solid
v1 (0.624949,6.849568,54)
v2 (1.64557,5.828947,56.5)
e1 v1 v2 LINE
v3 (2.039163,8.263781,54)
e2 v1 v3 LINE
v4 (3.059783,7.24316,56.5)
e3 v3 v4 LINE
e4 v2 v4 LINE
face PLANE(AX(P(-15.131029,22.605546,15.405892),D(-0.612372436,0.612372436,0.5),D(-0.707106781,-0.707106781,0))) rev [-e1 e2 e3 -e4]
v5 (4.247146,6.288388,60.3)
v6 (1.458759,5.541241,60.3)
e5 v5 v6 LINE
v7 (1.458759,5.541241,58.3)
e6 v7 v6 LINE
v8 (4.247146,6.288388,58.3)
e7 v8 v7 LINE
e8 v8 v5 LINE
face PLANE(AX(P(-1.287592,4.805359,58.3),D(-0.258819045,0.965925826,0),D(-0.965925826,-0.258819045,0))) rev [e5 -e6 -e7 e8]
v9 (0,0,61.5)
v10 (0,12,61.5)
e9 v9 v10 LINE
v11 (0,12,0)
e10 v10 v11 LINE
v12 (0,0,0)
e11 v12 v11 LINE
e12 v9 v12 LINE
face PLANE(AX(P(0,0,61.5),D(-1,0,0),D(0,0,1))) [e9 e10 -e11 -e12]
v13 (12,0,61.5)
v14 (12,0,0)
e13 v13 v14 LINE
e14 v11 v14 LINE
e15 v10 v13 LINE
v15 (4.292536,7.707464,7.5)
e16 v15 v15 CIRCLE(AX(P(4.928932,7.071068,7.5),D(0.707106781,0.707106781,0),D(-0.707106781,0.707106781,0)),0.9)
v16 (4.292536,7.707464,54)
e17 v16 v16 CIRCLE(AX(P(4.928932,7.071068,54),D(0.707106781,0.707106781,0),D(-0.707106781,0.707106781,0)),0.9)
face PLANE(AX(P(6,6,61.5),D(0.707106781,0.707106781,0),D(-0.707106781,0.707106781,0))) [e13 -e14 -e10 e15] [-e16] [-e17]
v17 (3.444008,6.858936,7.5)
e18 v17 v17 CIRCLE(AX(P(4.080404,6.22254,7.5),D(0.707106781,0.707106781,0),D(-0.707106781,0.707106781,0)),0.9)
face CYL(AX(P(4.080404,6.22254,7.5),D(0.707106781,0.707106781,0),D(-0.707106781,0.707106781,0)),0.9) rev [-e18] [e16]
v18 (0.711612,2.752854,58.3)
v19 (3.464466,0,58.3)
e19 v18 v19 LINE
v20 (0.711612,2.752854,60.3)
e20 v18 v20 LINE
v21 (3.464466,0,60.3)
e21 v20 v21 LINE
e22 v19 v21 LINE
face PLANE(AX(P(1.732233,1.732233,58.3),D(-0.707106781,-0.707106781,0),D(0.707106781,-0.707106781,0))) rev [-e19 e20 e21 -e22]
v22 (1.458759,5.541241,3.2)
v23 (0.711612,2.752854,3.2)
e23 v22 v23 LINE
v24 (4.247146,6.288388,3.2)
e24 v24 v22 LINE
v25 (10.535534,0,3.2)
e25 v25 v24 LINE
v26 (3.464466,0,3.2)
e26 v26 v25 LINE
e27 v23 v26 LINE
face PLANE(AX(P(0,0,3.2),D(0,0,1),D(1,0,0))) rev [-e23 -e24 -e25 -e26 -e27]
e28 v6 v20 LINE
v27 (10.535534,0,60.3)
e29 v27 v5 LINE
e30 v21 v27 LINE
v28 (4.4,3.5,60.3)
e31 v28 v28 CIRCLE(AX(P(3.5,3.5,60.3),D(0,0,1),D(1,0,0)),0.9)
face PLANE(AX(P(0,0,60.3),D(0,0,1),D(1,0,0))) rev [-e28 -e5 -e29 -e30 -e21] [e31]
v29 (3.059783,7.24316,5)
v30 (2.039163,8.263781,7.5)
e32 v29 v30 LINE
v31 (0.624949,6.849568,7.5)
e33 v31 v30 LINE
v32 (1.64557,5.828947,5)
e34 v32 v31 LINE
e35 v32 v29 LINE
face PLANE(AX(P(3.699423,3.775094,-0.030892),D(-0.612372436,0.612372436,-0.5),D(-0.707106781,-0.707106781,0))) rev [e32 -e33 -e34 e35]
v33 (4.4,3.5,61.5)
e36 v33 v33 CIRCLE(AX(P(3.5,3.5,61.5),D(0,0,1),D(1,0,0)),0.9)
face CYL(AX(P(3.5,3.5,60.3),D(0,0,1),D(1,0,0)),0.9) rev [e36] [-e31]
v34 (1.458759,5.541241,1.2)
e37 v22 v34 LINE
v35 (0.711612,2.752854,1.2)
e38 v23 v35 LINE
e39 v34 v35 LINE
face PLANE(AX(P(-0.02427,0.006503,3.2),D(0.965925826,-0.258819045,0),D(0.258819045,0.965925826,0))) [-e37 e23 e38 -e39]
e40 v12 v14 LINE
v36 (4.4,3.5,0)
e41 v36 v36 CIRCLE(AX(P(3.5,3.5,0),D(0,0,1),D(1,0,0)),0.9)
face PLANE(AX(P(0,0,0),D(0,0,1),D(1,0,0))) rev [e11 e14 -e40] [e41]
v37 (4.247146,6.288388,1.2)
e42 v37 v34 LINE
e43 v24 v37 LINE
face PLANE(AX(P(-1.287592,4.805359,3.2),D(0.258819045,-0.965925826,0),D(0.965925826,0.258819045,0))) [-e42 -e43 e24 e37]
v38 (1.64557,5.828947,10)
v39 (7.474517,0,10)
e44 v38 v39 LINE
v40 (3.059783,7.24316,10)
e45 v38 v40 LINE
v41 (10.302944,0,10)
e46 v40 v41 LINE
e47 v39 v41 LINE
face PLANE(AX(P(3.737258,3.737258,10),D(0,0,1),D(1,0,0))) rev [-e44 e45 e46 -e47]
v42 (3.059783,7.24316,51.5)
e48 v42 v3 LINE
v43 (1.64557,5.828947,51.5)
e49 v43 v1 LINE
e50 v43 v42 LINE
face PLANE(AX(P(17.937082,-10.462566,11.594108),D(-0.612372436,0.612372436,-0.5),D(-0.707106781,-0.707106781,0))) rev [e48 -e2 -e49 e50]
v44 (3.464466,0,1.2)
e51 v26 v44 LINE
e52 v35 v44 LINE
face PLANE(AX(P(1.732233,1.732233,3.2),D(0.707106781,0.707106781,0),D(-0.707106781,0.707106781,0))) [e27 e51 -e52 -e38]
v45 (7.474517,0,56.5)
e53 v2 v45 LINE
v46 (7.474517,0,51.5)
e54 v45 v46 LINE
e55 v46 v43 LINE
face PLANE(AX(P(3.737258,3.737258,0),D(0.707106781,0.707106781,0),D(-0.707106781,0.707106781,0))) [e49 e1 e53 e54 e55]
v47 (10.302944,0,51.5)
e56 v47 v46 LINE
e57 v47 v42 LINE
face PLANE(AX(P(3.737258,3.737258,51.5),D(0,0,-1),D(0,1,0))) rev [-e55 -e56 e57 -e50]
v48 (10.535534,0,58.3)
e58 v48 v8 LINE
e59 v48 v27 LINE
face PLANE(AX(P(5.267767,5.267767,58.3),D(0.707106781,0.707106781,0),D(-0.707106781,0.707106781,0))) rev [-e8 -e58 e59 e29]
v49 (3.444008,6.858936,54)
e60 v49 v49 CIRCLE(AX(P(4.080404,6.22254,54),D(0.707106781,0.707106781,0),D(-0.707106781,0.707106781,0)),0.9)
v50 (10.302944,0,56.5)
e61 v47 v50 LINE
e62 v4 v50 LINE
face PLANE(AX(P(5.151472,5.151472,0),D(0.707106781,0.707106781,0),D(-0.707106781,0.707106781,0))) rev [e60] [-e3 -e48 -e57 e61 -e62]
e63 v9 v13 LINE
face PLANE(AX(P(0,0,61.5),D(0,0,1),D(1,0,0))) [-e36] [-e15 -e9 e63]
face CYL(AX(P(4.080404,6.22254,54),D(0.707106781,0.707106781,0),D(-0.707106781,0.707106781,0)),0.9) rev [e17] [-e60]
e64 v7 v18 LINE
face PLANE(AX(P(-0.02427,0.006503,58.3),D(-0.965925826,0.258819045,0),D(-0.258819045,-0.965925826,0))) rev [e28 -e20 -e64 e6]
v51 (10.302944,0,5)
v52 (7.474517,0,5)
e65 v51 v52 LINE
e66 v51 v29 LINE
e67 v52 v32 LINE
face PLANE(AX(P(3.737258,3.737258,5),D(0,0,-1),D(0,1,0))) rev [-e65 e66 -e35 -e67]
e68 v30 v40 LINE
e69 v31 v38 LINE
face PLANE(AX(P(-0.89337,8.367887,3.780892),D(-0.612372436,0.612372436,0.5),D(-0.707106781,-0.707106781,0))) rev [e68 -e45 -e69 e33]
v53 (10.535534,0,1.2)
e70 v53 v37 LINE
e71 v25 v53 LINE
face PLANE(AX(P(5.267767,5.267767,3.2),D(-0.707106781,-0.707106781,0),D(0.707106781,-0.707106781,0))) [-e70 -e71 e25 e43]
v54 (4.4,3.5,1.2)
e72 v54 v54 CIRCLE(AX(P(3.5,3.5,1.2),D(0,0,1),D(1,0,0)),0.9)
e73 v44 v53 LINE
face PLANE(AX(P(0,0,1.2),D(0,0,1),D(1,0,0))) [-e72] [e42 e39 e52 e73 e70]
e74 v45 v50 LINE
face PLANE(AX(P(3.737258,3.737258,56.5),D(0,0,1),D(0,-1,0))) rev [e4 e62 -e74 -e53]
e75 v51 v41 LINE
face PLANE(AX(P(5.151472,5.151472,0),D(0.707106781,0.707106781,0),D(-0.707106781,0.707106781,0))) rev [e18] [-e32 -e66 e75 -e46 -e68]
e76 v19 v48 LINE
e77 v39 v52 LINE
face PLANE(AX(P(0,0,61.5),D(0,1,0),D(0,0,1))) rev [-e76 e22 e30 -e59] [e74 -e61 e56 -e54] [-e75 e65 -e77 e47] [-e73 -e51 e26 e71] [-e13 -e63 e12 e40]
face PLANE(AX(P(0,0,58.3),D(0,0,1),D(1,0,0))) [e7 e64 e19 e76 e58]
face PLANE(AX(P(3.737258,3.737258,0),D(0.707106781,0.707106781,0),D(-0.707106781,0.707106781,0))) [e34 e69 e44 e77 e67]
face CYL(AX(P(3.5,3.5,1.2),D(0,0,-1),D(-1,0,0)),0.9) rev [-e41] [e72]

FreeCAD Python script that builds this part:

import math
import FreeCAD as App
import Part
import Sketcher
from FreeCAD import Vector
Q = App.Units.Quantity


def add_polygon(sketch, points):
    """Adds a closed chain of lines whose ends are joined by coincident constraints."""
    first, n = sketch.GeometryCount, len(points)
    for a, b in zip(points, points[1:] + points[:1]):
        sketch.addGeometry(Part.LineSegment(App.Vector(*a, 0), App.Vector(*b, 0)), False)
    for i in range(n):
        sketch.addConstraint(Sketcher.Constraint("Coincident", first + i, 2, first + (i + 1) % n, 1))

doc = App.newDocument("Part")
body = doc.addObject("PartDesign::Body", "Body")

# Sketch on XY plane
sketch1 = body.newObject("Sketcher::SketchObject", "Sketch")
sketch1.AttachmentSupport = (doc.getObject("XY_Plane"), [""])
sketch1.MapMode = "FlatFace"
add_polygon(sketch1, [(12, 0), (0, 12), (0, 0)])  # lines 0-2
sketch1.addConstraint([
    Sketcher.Constraint("Vertical", 1),
    Sketcher.Constraint("Horizontal", 2),
    Sketcher.Constraint("Coincident", 1, 2, -1, 1),
    Sketcher.Constraint("Equal", 2, 1),
    Sketcher.Constraint("DistanceX", 2, 1, 2, 2, 12.0),
])
pad1 = body.newObject("PartDesign::Pad", "Pad")
pad1.Profile = sketch1
pad1.Length = 61.5

# Sketch on XY plane
sketch2 = body.newObject("Sketcher::SketchObject", "Sketch001")
sketch2.AttachmentSupport = (doc.getObject("XY_Plane"), [""])
sketch2.MapMode = "FlatFace"
add_polygon(sketch2, [(10.5, 0), (4.2, 6.3), (1.5, 5.5), (0.7, 2.8), (3.5, 0)])  # lines 0-4
sketch2.addConstraint([
    Sketcher.Constraint("Horizontal", 4),
    Sketcher.Constraint("PointOnObject", 3, 2, -1),
    Sketcher.Constraint("Parallel", 0, 3),
    Sketcher.Constraint("Equal", 1, 2),
    Sketcher.Constraint("Angle", 0, Q("135 deg")),
    Sketcher.Constraint("Angle", 1, Q("-165 deg")),
    Sketcher.Constraint("Angle", 2, Q("-105 deg")),
    Sketcher.Constraint("Distance", 1, 2.886751),
    Sketcher.Constraint("DistanceX", -1, 1, 1, 2, 1.458759),
    Sketcher.Constraint("DistanceY", -1, 1, 1, 2, 5.541241),
])
pocket1 = body.newObject("PartDesign::Pocket", "Pocket")
pocket1.Profile = sketch2
pocket1.Length = 3.2
pocket1.Reversed = True

# Sketch on XY plane
sketch3 = body.newObject("Sketcher::SketchObject", "Sketch002")
sketch3.AttachmentSupport = (doc.getObject("XY_Plane"), [""])
sketch3.MapMode = "FlatFace"
add_polygon(sketch3, [(10.5, 0), (4.2, 6.3), (1.5, 5.5), (0.7, 2.8), (3.5, 0)])  # lines 0-4
sketch3.addGeometry(Part.Circle(Vector(3.5, 3.5, 0), Vector(0, 0, 1), 0.9), False)  # 5
sketch3.addConstraint([
    Sketcher.Constraint("Horizontal", 4),
    Sketcher.Constraint("PointOnObject", 3, 2, -1),
    Sketcher.Constraint("Parallel", 0, 3),
    Sketcher.Constraint("Equal", 1, 2),
    Sketcher.Constraint("Diameter", 5, 1.8),
    Sketcher.Constraint("Angle", 0, Q("135 deg")),
    Sketcher.Constraint("Angle", 1, Q("-165 deg")),
    Sketcher.Constraint("Angle", 2, Q("-105 deg")),
    Sketcher.Constraint("DistanceX", -1, 1, 5, 3, 3.5),
    Sketcher.Constraint("DistanceY", -1, 1, 5, 3, 3.5),
    Sketcher.Constraint("Distance", 1, 2.886751),
    Sketcher.Constraint("DistanceX", -1, 1, 1, 2, 1.458759),
    Sketcher.Constraint("DistanceY", -1, 1, 1, 2, 5.541241),
])
pad2 = body.newObject("PartDesign::Pad", "Pad001")
pad2.Profile = sketch3
pad2.Length = 1.2

# Sketch on XY plane
sketch4 = body.newObject("Sketcher::SketchObject", "Sketch003")
sketch4.AttachmentSupport = (doc.getObject("XY_Plane"), [""])
sketch4.MapMode = "FlatFace"
sketch4.AttachmentOffset = App.Placement(Vector(0, 0, 58.3), App.Rotation())
add_polygon(sketch4, [(4.2, 6.3), (1.5, 5.5), (0.7, 2.8), (3.5, 0), (10.5, 0)])  # lines 0-4
sketch4.addConstraint([
    Sketcher.Constraint("Horizontal", 3),
    Sketcher.Constraint("PointOnObject", 2, 2, -1),
    Sketcher.Constraint("Parallel", 2, 4),
    Sketcher.Constraint("Equal", 0, 1),
    Sketcher.Constraint("Angle", 0, Q("-165 deg")),
    Sketcher.Constraint("Angle", 1, Q("-105 deg")),
    Sketcher.Constraint("Angle", 2, Q("-45 deg")),
    Sketcher.Constraint("Distance", 0, 2.886751),
    Sketcher.Constraint("DistanceX", -1, 1, 0, 2, 1.458759),
    Sketcher.Constraint("DistanceY", -1, 1, 0, 2, 5.541241),
])
pocket2 = body.newObject("PartDesign::Pocket", "Pocket001")
pocket2.Profile = sketch4
pocket2.Length = 3.2
pocket2.Reversed = True

# Sketch on XY plane
sketch5 = body.newObject("Sketcher::SketchObject", "Sketch004")
sketch5.AttachmentSupport = (doc.getObject("XY_Plane"), [""])
sketch5.MapMode = "FlatFace"
sketch5.AttachmentOffset = App.Placement(Vector(0, 0, 60.3), App.Rotation())
add_polygon(sketch5, [(4.2, 6.3), (1.5, 5.5), (0.7, 2.8), (3.5, 0), (10.5, 0)])  # lines 0-4
sketch5.addGeometry(Part.Circle(Vector(3.5, 3.5, 0), Vector(0, 0, 1), 0.9), False)  # 5
sketch5.addConstraint([
    Sketcher.Constraint("Horizontal", 3),
    Sketcher.Constraint("PointOnObject", 2, 2, -1),
    Sketcher.Constraint("Parallel", 2, 4),
    Sketcher.Constraint("Equal", 0, 1),
    Sketcher.Constraint("Diameter", 5, 1.8),
    Sketcher.Constraint("Angle", 0, Q("-165 deg")),
    Sketcher.Constraint("Angle", 1, Q("-105 deg")),
    Sketcher.Constraint("Angle", 2, Q("-45 deg")),
    Sketcher.Constraint("DistanceX", -1, 1, 5, 3, 3.5),
    Sketcher.Constraint("DistanceY", -1, 1, 5, 3, 3.5),
    Sketcher.Constraint("Distance", 0, 2.886751),
    Sketcher.Constraint("DistanceX", -1, 1, 0, 2, 1.458759),
    Sketcher.Constraint("DistanceY", -1, 1, 0, 2, 5.541241),
])
pad3 = body.newObject("PartDesign::Pad", "Pad002")
pad3.Profile = sketch5
pad3.Length = 1.2

# Sketch on an angled plane
sketch6 = body.newObject("Sketcher::SketchObject", "Sketch005")
sketch6.Placement = App.Placement(Vector(6, 6, 0), App.Rotation(Vector(0, 0, -1), Vector(-0.707106781, 0.707106781, 0), Vector(0.707106781, 0.707106781, 0), "ZXY"))
add_polygon(sketch6, [(-51.5, 3), (-54, 4.4), (-56.5, 3), (-56.5, -8.5), (-51.5, -8.5)])  # lines 0-4
add_polygon(sketch6, [(-5, -8.5), (-5, 3), (-7.5, 4.4), (-10, 3), (-10, -8.5)])  # lines 5-9
sketch6.addConstraint([
    Sketcher.Constraint("Vertical", 2),
    Sketcher.Constraint("Horizontal", 3),
    Sketcher.Constraint("Vertical", 4),
    Sketcher.Constraint("Vertical", 5),
    Sketcher.Constraint("Vertical", 8),
    Sketcher.Constraint("Horizontal", 9),
    Sketcher.Constraint("Parallel", 0, 6),
    Sketcher.Constraint("Parallel", 1, 7),
    Sketcher.Constraint("Horizontal", 1, 2, 4, 2),
    Sketcher.Constraint("Horizontal", 4, 2, 5, 2),
    Sketcher.Constraint("Horizontal", 0, 2, 6, 2),
    Sketcher.Constraint("Horizontal", 5, 2, 7, 2),
    Sketcher.Constraint("Horizontal", 3, 2, 8, 2),
    Sketcher.Constraint("Equal", 0, 1),
    Sketcher.Constraint("DistanceX", 3, 1, 3, 2, 5.0),
    Sketcher.Constraint("Angle", 0, Q("150 deg")),
    Sketcher.Constraint("DistanceX", 0, 2, -1, 1, 54.0),
    Sketcher.Constraint("DistanceX", 5, 2, -1, 1, 5.0),
    Sketcher.Constraint("DistanceY", 2, 2, 2, 1, 11.443376),
    Sketcher.Constraint("DistanceY", -1, 1, 0, 2, 4.40147),
])
pocket3 = body.newObject("PartDesign::Pocket", "Pocket002")
pocket3.Profile = sketch6
pocket3.Length = 3.2

# Sketch on an angled plane
sketch7 = body.newObject("Sketcher::SketchObject", "Sketch006")
sketch7.Placement = App.Placement(Vector(6, 6, 0), App.Rotation(Vector(0, 0, -1), Vector(-0.707106781, 0.707106781, 0), Vector(0.707106781, 0.707106781, 0), "ZXY"))
add_polygon(sketch7, [(-51.5, 3), (-54, 4.4), (-56.5, 3), (-56.5, -8.5), (-51.5, -8.5)])  # lines 0-4
sketch7.addGeometry(Part.ArcOfCircle(Part.Circle(Vector(-54, 1.5, 0), Vector(0, 0, 1), 0.9), math.radians(0), math.radians(180)), False)  # 5
sketch7.addGeometry(Part.ArcOfCircle(Part.Circle(Vector(-54, 1.5, 0), Vector(0, 0, 1), 0.9), math.radians(-90), math.radians(0)), False)  # 6
sketch7.addGeometry(Part.ArcOfCircle(Part.Circle(Vector(-54, 1.5, 0), Vector(0, 0, 1), 0.9), math.radians(180), math.radians(270)), False)  # 7
add_polygon(sketch7, [(-5, 3), (-7.5, 4.4), (-10, 3), (-10, -8.5), (-5, -8.5)])  # lines 8-12
sketch7.addGeometry(Part.ArcOfCircle(Part.Circle(Vector(-7.5, 1.5, 0), Vector(0, 0, 1), 0.9), math.radians(0), math.radians(270)), False)  # 13
sketch7.addGeometry(Part.ArcOfCircle(Part.Circle(Vector(-7.5, 1.5, 0), Vector(0, 0, 1), 0.9), math.radians(-90), math.radians(0)), False)  # 14
sketch7.addConstraint([
    Sketcher.Constraint("Tangent", 5, 1, 6, 2),
    Sketcher.Constraint("Tangent", 6, 1, 7, 2),
    Sketcher.Constraint("Tangent", 7, 1, 5, 2),
    Sketcher.Constraint("Tangent", 13, 1, 14, 2),
    Sketcher.Constraint("Coincident", 14, 1, 13, 2),
    Sketcher.Constraint("Vertical", 2),
    Sketcher.Constraint("Horizontal", 3),
    Sketcher.Constraint("Vertical", 4),
    Sketcher.Constraint("Vertical", 10),
    Sketcher.Constraint("Horizontal", 11),
    Sketcher.Constraint("Vertical", 12),
    Sketcher.Constraint("Equal", 7, 13),
    Sketcher.Constraint("Parallel", 0, 8),
    Sketcher.Constraint("Parallel", 1, 9),
    Sketcher.Constraint("Horizontal", 7, 3, 13, 3),
    Sketcher.Constraint("Horizontal", 1, 2, 4, 2),
    Sketcher.Constraint("Horizontal", 14, 3, 5, 1),
    Sketcher.Constraint("Horizontal", 5, 1, 7, 1),
    Sketcher.Constraint("Horizontal", 0, 2, 8, 2),
    Sketcher.Constraint("Horizontal", 4, 2, 9, 2),
    Sketcher.Constraint("Horizontal", 3, 2, 10, 2),
    Sketcher.Constraint("Horizontal", 9, 2, 12, 2),
    Sketcher.Constraint("Horizontal", 7, 1, 13, 1),
    Sketcher.Constraint("Vertical", 7, 3, 0, 2),
    Sketcher.Constraint("Vertical", 0, 2, 6, 1),
    Sketcher.Constraint("Vertical", 14, 3, 8, 2),
    Sketcher.Constraint("Vertical", 8, 2, 14, 1),
    Sketcher.Constraint("Equal", 0, 1),
    Sketcher.Constraint("Radius", 5, 0.9),
    Sketcher.Constraint("DistanceX", 3, 1, 3, 2, 5.0),
    Sketcher.Constraint("Angle", 0, Q("150 deg")),
    Sketcher.Constraint("DistanceX", 5, 3, -1, 1, 54.0),
    Sketcher.Constraint("DistanceX", 9, 2, -1, 1, 10.0),
    Sketcher.Constraint("DistanceY", 2, 2, 5, 3, 10.0),
    Sketcher.Constraint("DistanceY", 2, 2, 2, 1, 11.443376),
    Sketcher.Constraint("DistanceY", -1, 1, 5, 3, 1.514719),
])
pad4 = body.newObject("PartDesign::Pad", "Pad003")
pad4.Profile = sketch7
pad4.Length = 1.2
pad4.Reversed = True

# Sketch on XY plane
sketch8 = body.newObject("Sketcher::SketchObject", "Sketch007")
sketch8.AttachmentSupport = (doc.getObject("XY_Plane"), [""])
sketch8.MapMode = "FlatFace"
add_polygon(sketch8, [(12, -2.2), (12, 0), (0, 0), (0, -2.2)])  # lines 0-3
sketch8.addConstraint([
    Sketcher.Constraint("Vertical", 0),
    Sketcher.Constraint("Horizontal", 1),
    Sketcher.Constraint("Vertical", 2),
    Sketcher.Constraint("Horizontal", 3),
    Sketcher.Constraint("Coincident", 1, 2, -1, 1),
    Sketcher.Constraint("DistanceX", 1, 2, 1, 1, 12.0),
    Sketcher.Constraint("DistanceY", 0, 1, 0, 2, 2.237435),
])
pocket4 = body.newObject("PartDesign::Pocket", "Pocket003")
pocket4.Profile = sketch8
pocket4.Type = "ThroughAll"
pocket4.Reversed = True

doc.recompute()
